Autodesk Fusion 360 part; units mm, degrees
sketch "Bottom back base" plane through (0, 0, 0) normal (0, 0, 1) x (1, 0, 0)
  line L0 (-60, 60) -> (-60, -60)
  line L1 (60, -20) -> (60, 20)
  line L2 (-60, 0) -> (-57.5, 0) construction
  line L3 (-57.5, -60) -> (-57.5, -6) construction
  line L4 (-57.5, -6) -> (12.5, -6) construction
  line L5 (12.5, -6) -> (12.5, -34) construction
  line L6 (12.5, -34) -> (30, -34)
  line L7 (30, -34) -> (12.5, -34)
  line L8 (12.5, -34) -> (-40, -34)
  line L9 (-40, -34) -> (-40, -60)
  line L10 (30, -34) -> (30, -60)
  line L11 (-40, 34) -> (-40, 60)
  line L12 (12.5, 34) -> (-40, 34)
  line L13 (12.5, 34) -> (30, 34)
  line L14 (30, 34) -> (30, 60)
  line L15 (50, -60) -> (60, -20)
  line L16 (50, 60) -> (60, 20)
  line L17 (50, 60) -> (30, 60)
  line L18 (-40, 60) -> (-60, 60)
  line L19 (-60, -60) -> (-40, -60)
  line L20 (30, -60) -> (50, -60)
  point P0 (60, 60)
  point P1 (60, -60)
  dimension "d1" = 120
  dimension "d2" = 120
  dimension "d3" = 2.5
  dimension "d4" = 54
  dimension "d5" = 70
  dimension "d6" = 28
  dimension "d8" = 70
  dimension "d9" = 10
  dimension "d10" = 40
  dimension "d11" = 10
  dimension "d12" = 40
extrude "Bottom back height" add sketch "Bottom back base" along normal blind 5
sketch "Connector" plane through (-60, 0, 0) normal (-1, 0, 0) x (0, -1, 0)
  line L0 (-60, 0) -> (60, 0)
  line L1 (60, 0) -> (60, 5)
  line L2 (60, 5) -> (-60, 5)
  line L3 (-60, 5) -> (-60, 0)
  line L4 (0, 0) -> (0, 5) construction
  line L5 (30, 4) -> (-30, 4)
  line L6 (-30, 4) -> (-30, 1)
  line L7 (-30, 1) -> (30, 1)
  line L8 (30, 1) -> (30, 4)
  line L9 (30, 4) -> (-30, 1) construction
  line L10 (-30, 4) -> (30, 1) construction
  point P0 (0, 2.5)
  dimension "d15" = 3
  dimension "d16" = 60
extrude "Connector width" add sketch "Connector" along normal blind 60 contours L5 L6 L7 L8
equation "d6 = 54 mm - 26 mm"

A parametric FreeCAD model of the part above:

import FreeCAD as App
import Part
import Sketcher

V = App.Vector
Q = App.Units.Quantity

doc = App.newDocument("Part")
params = doc.addObject("Spreadsheet::Sheet", "Params")
for row, (alias, value) in enumerate([
    ("sketch1_width", "70 mm"),
    ("sketch1_height", "120 mm"),
    ("sketch1_height2", "40 mm"),
    ("sketch1_width2", "20 mm"),
    ("pad1_length", "5 mm"),
    ("sketch2_width", "60 mm"),
    ("sketch2_height", "3 mm"),
    ("pad2_length", "60 mm"),
], start=1):
    params.set(f"A{row}", alias)
    params.set(f"B{row}", "=" + value)
    params.setAlias(f"B{row}", alias)

body = doc.addObject("PartDesign::Body", "Body")

sketch1 = body.newObject("Sketcher::SketchObject", "Sketch")
sketch1.AttachmentSupport = (doc.getObject("XY_Plane"), [""])
sketch1.MapMode = "FlatFace"
sketch1.addGeometry([
    Part.LineSegment(V(-40, 60, 0), V(-60, 60, 0)),
    Part.LineSegment(V(-60, 60, 0), V(-60, -60, 0)),
    Part.LineSegment(V(-60, -60, 0), V(-40, -60, 0)),
    Part.LineSegment(V(-40, -60, 0), V(-40, -34, 0)),
    Part.LineSegment(V(-40, -34, 0), V(30, -34, 0)),
    Part.LineSegment(V(30, -34, 0), V(30, -60, 0)),
    Part.LineSegment(V(30, -60, 0), V(50, -60, 0)),
    Part.LineSegment(V(50, -60, 0), V(60, -20, 0)),
    Part.LineSegment(V(60, -20, 0), V(60, 20, 0)),
    Part.LineSegment(V(60, 20, 0), V(50, 60, 0)),
    Part.LineSegment(V(50, 60, 0), V(30, 60, 0)),
    Part.LineSegment(V(30, 60, 0), V(30, 34, 0)),
    Part.LineSegment(V(30, 34, 0), V(-40, 34, 0)),
    Part.LineSegment(V(-40, 34, 0), V(-40, 60, 0)),
], False)
sketch1.addConstraint([
    Sketcher.Constraint("Coincident", 0, 2, 1, 1),
    Sketcher.Constraint("Coincident", 1, 2, 2, 1),
    Sketcher.Constraint("Coincident", 2, 2, 3, 1),
    Sketcher.Constraint("Coincident", 3, 2, 4, 1),
    Sketcher.Constraint("Coincident", 4, 2, 5, 1),
    Sketcher.Constraint("Coincident", 5, 2, 6, 1),
    Sketcher.Constraint("Coincident", 6, 2, 7, 1),
    Sketcher.Constraint("Coincident", 7, 2, 8, 1),
    Sketcher.Constraint("Coincident", 8, 2, 9, 1),
    Sketcher.Constraint("Coincident", 9, 2, 10, 1),
    Sketcher.Constraint("Coincident", 10, 2, 11, 1),
    Sketcher.Constraint("Coincident", 11, 2, 12, 1),
    Sketcher.Constraint("Coincident", 12, 2, 13, 1),
    Sketcher.Constraint("Coincident", 13, 2, 0, 1),
    Sketcher.Constraint("Horizontal", 0),
    Sketcher.Constraint("Vertical", 1),
    Sketcher.Constraint("Horizontal", 2),
    Sketcher.Constraint("Vertical", 3),
    Sketcher.Constraint("Horizontal", 4),
    Sketcher.Constraint("Vertical", 5),
    Sketcher.Constraint("Horizontal", 6),
    Sketcher.Constraint("Vertical", 8),
    Sketcher.Constraint("Horizontal", 10),
    Sketcher.Constraint("Vertical", 11),
    Sketcher.Constraint("Horizontal", 12),
    Sketcher.Constraint("Vertical", 13),
    Sketcher.Constraint("Symmetric", 6, 2, 9, 2, -1),
    Sketcher.Constraint("Symmetric", 4, 2, 11, 2, -1),
    Sketcher.Constraint("Symmetric", 2, 2, 13, 2, -1),
    Sketcher.Constraint("Horizontal", 2, 2, 5, 2),
    Sketcher.Constraint("Equal", 2, 6),
    Sketcher.Constraint("Equal", 7, 9),
    Sketcher.Constraint("DistanceX", 4, 1, 4, 2, Q("70 mm")),
    Sketcher.Constraint("DistanceY", 1, 2, 1, 1, Q("120 mm")),
    Sketcher.Constraint("DistanceY", 8, 1, 8, 2, Q("40 mm")),
    Sketcher.Constraint("DistanceX", 2, 2, -1, 1, Q("40 mm")),
    Sketcher.Constraint("DistanceX", 6, 2, 7, 2, Q("10 mm")),
    Sketcher.Constraint("DistanceY", 4, 2, 8, 2, Q("54 mm")),
    Sketcher.Constraint("DistanceX", 0, 2, 0, 1, Q("20 mm")),
])
sketch1.setExpression("Constraints[32]", "Params.sketch1_width")
sketch1.setExpression("Constraints[33]", "Params.sketch1_height")
sketch1.setExpression("Constraints[34]", "Params.sketch1_height2")
sketch1.setExpression("Constraints[38]", "Params.sketch1_width2")
pad1 = body.newObject("PartDesign::Pad", "Pad")
pad1.Profile = sketch1
pad1.setExpression("Length", "Params.pad1_length")

sketch2 = body.newObject("Sketcher::SketchObject", "Sketch001")
sketch2.AttachmentSupport = (doc.getObject("YZ_Plane"), [""])
sketch2.MapMode = "FlatFace"
sketch2.AttachmentOffset = App.Placement(V(0, 0, -60), App.Rotation())
sketch2.addGeometry([
    Part.LineSegment(V(-30, 1, 0), V(-30, 4, 0)),
    Part.LineSegment(V(-30, 4, 0), V(30, 4, 0)),
    Part.LineSegment(V(30, 4, 0), V(30, 1, 0)),
    Part.LineSegment(V(30, 1, 0), V(-30, 1, 0)),
], False)
sketch2.addConstraint([
    Sketcher.Constraint("Coincident", 0, 2, 1, 1),
    Sketcher.Constraint("Coincident", 1, 2, 2, 1),
    Sketcher.Constraint("Coincident", 2, 2, 3, 1),
    Sketcher.Constraint("Coincident", 3, 2, 0, 1),
    Sketcher.Constraint("Vertical", 0),
    Sketcher.Constraint("Horizontal", 1),
    Sketcher.Constraint("Vertical", 2),
    Sketcher.Constraint("Horizontal", 3),
    Sketcher.Constraint("DistanceX", 1, 1, 1, 2, Q("60 mm")),
    Sketcher.Constraint("DistanceY", 0, 1, 0, 2, Q("3 mm")),
    Sketcher.Constraint("DistanceX", 0, 2, -1, 1, Q("30 mm")),
    Sketcher.Constraint("DistanceY", -1, 1, 0, 2, Q("4 mm")),
])
sketch2.setExpression("Constraints[8]", "Params.sketch2_width")
sketch2.setExpression("Constraints[9]", "Params.sketch2_height")
pad2 = body.newObject("PartDesign::Pad", "Pad001")
pad2.Profile = sketch2
pad2.setExpression("Length", "Params.pad2_length")
pad2.Reversed = True

doc.recompute()
